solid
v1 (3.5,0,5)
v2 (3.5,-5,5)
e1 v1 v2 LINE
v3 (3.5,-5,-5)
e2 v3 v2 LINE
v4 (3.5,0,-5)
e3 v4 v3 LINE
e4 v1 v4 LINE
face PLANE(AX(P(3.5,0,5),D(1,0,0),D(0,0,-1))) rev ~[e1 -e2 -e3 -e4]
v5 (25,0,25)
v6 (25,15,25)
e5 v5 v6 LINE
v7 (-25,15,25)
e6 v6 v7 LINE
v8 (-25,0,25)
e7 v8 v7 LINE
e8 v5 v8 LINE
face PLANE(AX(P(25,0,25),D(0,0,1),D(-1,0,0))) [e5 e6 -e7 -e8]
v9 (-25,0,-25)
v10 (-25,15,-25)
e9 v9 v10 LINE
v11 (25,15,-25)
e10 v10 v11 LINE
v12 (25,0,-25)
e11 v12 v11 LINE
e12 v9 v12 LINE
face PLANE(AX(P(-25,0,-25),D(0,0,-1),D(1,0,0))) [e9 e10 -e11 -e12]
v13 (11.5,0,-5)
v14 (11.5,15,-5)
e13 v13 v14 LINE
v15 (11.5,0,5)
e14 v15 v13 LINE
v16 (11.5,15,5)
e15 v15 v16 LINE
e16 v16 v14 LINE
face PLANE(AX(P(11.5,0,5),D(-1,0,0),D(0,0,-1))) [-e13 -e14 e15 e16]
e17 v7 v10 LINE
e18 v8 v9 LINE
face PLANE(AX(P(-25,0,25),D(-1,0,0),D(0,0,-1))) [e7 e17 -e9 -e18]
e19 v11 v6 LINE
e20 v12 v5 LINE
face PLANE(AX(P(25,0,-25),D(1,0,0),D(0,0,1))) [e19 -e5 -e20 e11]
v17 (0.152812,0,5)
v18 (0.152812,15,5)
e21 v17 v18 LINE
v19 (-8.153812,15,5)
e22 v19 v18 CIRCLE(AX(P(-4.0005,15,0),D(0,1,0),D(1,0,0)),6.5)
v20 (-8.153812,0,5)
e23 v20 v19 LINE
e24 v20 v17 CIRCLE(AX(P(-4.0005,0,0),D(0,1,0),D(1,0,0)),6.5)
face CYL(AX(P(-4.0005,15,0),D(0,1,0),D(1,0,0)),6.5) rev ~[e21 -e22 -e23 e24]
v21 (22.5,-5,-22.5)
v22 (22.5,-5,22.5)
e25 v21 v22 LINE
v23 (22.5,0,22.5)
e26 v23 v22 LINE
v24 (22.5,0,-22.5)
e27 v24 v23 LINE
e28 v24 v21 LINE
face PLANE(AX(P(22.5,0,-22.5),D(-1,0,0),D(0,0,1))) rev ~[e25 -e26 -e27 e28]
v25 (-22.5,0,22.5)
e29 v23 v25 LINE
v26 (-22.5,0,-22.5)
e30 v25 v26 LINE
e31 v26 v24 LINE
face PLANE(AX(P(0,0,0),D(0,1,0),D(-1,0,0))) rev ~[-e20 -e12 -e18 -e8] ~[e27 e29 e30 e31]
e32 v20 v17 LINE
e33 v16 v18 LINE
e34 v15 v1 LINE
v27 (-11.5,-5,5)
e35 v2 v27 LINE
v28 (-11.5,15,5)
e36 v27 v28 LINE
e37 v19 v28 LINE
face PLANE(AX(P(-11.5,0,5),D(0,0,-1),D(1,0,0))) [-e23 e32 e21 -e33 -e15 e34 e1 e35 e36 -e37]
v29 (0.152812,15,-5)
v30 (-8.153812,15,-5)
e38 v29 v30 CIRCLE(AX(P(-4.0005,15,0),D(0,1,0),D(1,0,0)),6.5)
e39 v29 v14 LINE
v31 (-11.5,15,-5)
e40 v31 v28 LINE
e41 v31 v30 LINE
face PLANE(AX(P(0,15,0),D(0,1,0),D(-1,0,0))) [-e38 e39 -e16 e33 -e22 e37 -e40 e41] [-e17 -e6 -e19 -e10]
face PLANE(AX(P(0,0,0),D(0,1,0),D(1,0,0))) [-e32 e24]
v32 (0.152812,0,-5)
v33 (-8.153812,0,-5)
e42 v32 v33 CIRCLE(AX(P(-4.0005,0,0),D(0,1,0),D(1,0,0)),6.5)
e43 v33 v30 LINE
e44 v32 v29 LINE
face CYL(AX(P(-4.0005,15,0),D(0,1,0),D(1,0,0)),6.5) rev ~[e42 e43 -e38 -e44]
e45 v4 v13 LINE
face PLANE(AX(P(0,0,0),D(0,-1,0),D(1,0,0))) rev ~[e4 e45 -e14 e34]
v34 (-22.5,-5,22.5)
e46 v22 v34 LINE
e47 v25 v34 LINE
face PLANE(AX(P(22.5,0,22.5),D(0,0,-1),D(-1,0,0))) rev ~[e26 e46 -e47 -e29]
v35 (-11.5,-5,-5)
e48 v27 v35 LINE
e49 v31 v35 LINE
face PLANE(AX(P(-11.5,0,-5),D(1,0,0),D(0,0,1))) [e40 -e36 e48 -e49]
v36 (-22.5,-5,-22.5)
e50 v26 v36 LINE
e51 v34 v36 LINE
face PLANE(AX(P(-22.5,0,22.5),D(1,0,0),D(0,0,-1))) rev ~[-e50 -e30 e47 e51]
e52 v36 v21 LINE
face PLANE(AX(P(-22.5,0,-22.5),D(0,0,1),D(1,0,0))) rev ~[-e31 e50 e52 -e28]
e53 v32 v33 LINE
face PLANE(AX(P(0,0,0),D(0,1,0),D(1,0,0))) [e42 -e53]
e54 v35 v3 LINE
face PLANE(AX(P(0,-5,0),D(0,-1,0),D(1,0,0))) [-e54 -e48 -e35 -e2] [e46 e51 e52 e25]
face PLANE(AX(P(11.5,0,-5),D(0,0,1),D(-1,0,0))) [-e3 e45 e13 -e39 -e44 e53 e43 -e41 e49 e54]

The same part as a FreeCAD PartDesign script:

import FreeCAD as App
import Part
import Sketcher
Q = App.Units.Quantity


def add_polygon(sketch, points):
    """Adds a closed chain of lines whose ends are joined by coincident constraints."""
    first, n = sketch.GeometryCount, len(points)
    for a, b in zip(points, points[1:] + points[:1]):
        sketch.addGeometry(Part.LineSegment(App.Vector(*a, 0), App.Vector(*b, 0)), False)
    for i in range(n):
        sketch.addConstraint(Sketcher.Constraint("Coincident", first + i, 2, first + (i + 1) % n, 1))

doc = App.newDocument("Part")
params = doc.addObject("Spreadsheet::Sheet", "Params")
for row, (alias, value) in enumerate([
    ("sketch1_width", "50 mm"),
    ("sketch1_width2", "23 mm"),
    ("sketch1_height", "10 mm"),
    ("pad1_length", "15 mm"),
    ("sketch2_width", "45 mm"),
    ("pad2_length", "5 mm"),
    ("sketch3_height", "10 mm"),
    ("sketch3_width", "15 mm"),
    ("sketch4_diameter", "13 mm"),
    ("pocket2_length", "15 mm"),
], start=1):
    params.set(f"A{row}", alias)
    params.set(f"B{row}", "=" + value)
    params.setAlias(f"B{row}", alias)

body = doc.addObject("PartDesign::Body", "Body")

# Sketch on XZ plane
sketch1 = body.newObject("Sketcher::SketchObject", "Sketch")
sketch1.AttachmentSupport = (doc.getObject("XZ_Plane"), [""])
sketch1.MapMode = "FlatFace"
add_polygon(sketch1, [(-25, 25), (25, 25), (25, -25), (-25, -25)])  # lines 0-3
add_polygon(sketch1, [(-12, -5), (12, -5), (12, 5), (-12, 5)])  # lines 4-7
sketch1.addConstraint([
    Sketcher.Constraint("Horizontal", 0),
    Sketcher.Constraint("Vertical", 1),
    Sketcher.Constraint("Horizontal", 2),
    Sketcher.Constraint("Vertical", 3),
    Sketcher.Constraint("Horizontal", 4),
    Sketcher.Constraint("Vertical", 5),
    Sketcher.Constraint("Horizontal", 6),
    Sketcher.Constraint("Vertical", 7),
    Sketcher.Constraint("Symmetric", 0, 2, 2, 2, -1, 1),
    Sketcher.Constraint("Symmetric", 4, 2, 6, 2, -1, 1),
    Sketcher.Constraint("Equal", 2, 1),
    Sketcher.Constraint("DistanceX", 0, 1, 0, 2, Q("50 mm")),
    Sketcher.Constraint("DistanceX", 4, 1, 4, 2, Q("23 mm")),
    Sketcher.Constraint("DistanceY", 5, 1, 5, 2, Q("10 mm")),
])
sketch1.setExpression("Constraints[19]", "Params.sketch1_width")
sketch1.setExpression("Constraints[20]", "Params.sketch1_width2")
sketch1.setExpression("Constraints[21]", "Params.sketch1_height")
pad1 = body.newObject("PartDesign::Pad", "Pad")
pad1.Profile = sketch1
pad1.setExpression("Length", "Params.pad1_length")
pad1.Reversed = True

# Sketch on XZ plane
sketch2 = body.newObject("Sketcher::SketchObject", "Sketch001")
sketch2.AttachmentSupport = (doc.getObject("XZ_Plane"), [""])
sketch2.MapMode = "FlatFace"
add_polygon(sketch2, [(22, -22), (22, 22), (-22, 22), (-22, -22)])  # lines 0-3
sketch2.addConstraint([
    Sketcher.Constraint("Vertical", 0),
    Sketcher.Constraint("Horizontal", 1),
    Sketcher.Constraint("Vertical", 2),
    Sketcher.Constraint("Horizontal", 3),
    Sketcher.Constraint("Symmetric", 0, 2, 2, 2, -1, 1),
    Sketcher.Constraint("Equal", 3, 0),
    Sketcher.Constraint("DistanceX", 1, 2, 1, 1, Q("45 mm")),
])
sketch2.setExpression("Constraints[10]", "Params.sketch2_width")
pad2 = body.newObject("PartDesign::Pad", "Pad001")
pad2.Profile = sketch2
pad2.setExpression("Length", "Params.pad2_length")

# Sketch on XZ plane
sketch3 = body.newObject("Sketcher::SketchObject", "Sketch002")
sketch3.AttachmentSupport = (doc.getObject("XZ_Plane"), [""])
sketch3.MapMode = "FlatFace"
add_polygon(sketch3, [(4, 5), (4, -5), (-12, -5), (-12, 5)])  # lines 0-3
sketch3.addConstraint([
    Sketcher.Constraint("Vertical", 0),
    Sketcher.Constraint("Horizontal", 1),
    Sketcher.Constraint("Vertical", 2),
    Sketcher.Constraint("Horizontal", 3),
    Sketcher.Constraint("DistanceY", 0, 2, 0, 1, Q("10 mm")),
    Sketcher.Constraint("DistanceX", 1, 2, 1, 1, Q("15 mm")),
    Sketcher.Constraint("DistanceY", 0, 2, -1, 1, Q("5 mm")),
    Sketcher.Constraint("DistanceX", -1, 1, 0, 2, Q("3.5 mm")),
])
sketch3.setExpression("Constraints[8]", "Params.sketch3_height")
sketch3.setExpression("Constraints[9]", "Params.sketch3_width")
pocket1 = body.newObject("PartDesign::Pocket", "Pocket")
pocket1.Profile = sketch3
pocket1.Type = "ThroughAll"
pocket1.Reversed = True

# Sketch on XZ plane
sketch4 = body.newObject("Sketcher::SketchObject", "Sketch003")
sketch4.AttachmentSupport = (doc.getObject("XZ_Plane"), [""])
sketch4.MapMode = "FlatFace"
sketch4.AttachmentOffset = App.Placement(App.Vector(0, 0, -15), App.Rotation())
sketch4.addGeometry(Part.Circle(App.Vector(-4, 0, 0), App.Vector(0, 0, 1), 6), False)
sketch4.addConstraint([
    Sketcher.Constraint("PointOnObject", 0, 3, -1),
    Sketcher.Constraint("Diameter", 0, Q("13 mm")),
    Sketcher.Constraint("DistanceX", 0, 3, -1, 1, Q("4.0005 mm")),
])
sketch4.setExpression("Constraints[1]", "Params.sketch4_diameter")
pocket2 = body.newObject("PartDesign::Pocket", "Pocket001")
pocket2.Profile = sketch4
pocket2.setExpression("Length", "Params.pocket2_length")
pocket2.Reversed = True

doc.recompute()
